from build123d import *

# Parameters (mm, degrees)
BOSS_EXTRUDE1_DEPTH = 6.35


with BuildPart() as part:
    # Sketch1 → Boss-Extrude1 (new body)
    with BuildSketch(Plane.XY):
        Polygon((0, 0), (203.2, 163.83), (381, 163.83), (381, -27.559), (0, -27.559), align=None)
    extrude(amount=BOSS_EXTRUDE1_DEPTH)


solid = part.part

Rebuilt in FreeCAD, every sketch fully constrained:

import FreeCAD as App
import Part
import Sketcher

V = App.Vector
Q = App.Units.Quantity


def add_polygon(sketch, points):
    """Adds a closed chain of lines whose ends are joined by coincident constraints."""
    first, n = sketch.GeometryCount, len(points)
    for a, b in zip(points, points[1:] + points[:1]):
        sketch.addGeometry(Part.LineSegment(App.Vector(*a, 0), App.Vector(*b, 0)), False)
    for i in range(n):
        sketch.addConstraint(Sketcher.Constraint("Coincident", first + i, 2, first + (i + 1) % n, 1))

doc = App.newDocument("Part")
body = doc.addObject("PartDesign::Body", "Body")

sketch1 = doc.addObject("Sketcher::SketchObject", "Sketch")
body.addObject(sketch1)
sketch1.AttachmentSupport = (doc.XY_Plane, [""])
sketch1.MapMode = "FlatFace"
add_polygon(sketch1, [(203.2, 163.83), (0, 0), (0, -27.559), (381, -27.559), (381, 163.83)])
sketch1.addConstraint(Sketcher.Constraint("Vertical", 1))
sketch1.addConstraint(Sketcher.Constraint("Horizontal", 2))
sketch1.addConstraint(Sketcher.Constraint("Vertical", 3))
sketch1.addConstraint(Sketcher.Constraint("Horizontal", 4))
sketch1.addConstraint(Sketcher.Constraint("Coincident", 0, 2, -1, 1))
sketch1.addConstraint(Sketcher.Constraint("DistanceX", 2, 1, 2, 2, Q("15 in")))
sketch1.addConstraint(Sketcher.Constraint("DistanceX", 4, 2, 4, 1, Q("7 in")))
sketch1.addConstraint(Sketcher.Constraint("DistanceY", 1, 2, 1, 1, Q("1.085 in")))
sketch1.addConstraint(Sketcher.Constraint("DistanceY", 3, 1, 3, 2, Q("7.535 in")))
pad1 = doc.addObject("PartDesign::Pad", "Pad")
body.addObject(pad1)
pad1.Profile = sketch1
pad1.Length = Q("0.25 in")

doc.recompute()
